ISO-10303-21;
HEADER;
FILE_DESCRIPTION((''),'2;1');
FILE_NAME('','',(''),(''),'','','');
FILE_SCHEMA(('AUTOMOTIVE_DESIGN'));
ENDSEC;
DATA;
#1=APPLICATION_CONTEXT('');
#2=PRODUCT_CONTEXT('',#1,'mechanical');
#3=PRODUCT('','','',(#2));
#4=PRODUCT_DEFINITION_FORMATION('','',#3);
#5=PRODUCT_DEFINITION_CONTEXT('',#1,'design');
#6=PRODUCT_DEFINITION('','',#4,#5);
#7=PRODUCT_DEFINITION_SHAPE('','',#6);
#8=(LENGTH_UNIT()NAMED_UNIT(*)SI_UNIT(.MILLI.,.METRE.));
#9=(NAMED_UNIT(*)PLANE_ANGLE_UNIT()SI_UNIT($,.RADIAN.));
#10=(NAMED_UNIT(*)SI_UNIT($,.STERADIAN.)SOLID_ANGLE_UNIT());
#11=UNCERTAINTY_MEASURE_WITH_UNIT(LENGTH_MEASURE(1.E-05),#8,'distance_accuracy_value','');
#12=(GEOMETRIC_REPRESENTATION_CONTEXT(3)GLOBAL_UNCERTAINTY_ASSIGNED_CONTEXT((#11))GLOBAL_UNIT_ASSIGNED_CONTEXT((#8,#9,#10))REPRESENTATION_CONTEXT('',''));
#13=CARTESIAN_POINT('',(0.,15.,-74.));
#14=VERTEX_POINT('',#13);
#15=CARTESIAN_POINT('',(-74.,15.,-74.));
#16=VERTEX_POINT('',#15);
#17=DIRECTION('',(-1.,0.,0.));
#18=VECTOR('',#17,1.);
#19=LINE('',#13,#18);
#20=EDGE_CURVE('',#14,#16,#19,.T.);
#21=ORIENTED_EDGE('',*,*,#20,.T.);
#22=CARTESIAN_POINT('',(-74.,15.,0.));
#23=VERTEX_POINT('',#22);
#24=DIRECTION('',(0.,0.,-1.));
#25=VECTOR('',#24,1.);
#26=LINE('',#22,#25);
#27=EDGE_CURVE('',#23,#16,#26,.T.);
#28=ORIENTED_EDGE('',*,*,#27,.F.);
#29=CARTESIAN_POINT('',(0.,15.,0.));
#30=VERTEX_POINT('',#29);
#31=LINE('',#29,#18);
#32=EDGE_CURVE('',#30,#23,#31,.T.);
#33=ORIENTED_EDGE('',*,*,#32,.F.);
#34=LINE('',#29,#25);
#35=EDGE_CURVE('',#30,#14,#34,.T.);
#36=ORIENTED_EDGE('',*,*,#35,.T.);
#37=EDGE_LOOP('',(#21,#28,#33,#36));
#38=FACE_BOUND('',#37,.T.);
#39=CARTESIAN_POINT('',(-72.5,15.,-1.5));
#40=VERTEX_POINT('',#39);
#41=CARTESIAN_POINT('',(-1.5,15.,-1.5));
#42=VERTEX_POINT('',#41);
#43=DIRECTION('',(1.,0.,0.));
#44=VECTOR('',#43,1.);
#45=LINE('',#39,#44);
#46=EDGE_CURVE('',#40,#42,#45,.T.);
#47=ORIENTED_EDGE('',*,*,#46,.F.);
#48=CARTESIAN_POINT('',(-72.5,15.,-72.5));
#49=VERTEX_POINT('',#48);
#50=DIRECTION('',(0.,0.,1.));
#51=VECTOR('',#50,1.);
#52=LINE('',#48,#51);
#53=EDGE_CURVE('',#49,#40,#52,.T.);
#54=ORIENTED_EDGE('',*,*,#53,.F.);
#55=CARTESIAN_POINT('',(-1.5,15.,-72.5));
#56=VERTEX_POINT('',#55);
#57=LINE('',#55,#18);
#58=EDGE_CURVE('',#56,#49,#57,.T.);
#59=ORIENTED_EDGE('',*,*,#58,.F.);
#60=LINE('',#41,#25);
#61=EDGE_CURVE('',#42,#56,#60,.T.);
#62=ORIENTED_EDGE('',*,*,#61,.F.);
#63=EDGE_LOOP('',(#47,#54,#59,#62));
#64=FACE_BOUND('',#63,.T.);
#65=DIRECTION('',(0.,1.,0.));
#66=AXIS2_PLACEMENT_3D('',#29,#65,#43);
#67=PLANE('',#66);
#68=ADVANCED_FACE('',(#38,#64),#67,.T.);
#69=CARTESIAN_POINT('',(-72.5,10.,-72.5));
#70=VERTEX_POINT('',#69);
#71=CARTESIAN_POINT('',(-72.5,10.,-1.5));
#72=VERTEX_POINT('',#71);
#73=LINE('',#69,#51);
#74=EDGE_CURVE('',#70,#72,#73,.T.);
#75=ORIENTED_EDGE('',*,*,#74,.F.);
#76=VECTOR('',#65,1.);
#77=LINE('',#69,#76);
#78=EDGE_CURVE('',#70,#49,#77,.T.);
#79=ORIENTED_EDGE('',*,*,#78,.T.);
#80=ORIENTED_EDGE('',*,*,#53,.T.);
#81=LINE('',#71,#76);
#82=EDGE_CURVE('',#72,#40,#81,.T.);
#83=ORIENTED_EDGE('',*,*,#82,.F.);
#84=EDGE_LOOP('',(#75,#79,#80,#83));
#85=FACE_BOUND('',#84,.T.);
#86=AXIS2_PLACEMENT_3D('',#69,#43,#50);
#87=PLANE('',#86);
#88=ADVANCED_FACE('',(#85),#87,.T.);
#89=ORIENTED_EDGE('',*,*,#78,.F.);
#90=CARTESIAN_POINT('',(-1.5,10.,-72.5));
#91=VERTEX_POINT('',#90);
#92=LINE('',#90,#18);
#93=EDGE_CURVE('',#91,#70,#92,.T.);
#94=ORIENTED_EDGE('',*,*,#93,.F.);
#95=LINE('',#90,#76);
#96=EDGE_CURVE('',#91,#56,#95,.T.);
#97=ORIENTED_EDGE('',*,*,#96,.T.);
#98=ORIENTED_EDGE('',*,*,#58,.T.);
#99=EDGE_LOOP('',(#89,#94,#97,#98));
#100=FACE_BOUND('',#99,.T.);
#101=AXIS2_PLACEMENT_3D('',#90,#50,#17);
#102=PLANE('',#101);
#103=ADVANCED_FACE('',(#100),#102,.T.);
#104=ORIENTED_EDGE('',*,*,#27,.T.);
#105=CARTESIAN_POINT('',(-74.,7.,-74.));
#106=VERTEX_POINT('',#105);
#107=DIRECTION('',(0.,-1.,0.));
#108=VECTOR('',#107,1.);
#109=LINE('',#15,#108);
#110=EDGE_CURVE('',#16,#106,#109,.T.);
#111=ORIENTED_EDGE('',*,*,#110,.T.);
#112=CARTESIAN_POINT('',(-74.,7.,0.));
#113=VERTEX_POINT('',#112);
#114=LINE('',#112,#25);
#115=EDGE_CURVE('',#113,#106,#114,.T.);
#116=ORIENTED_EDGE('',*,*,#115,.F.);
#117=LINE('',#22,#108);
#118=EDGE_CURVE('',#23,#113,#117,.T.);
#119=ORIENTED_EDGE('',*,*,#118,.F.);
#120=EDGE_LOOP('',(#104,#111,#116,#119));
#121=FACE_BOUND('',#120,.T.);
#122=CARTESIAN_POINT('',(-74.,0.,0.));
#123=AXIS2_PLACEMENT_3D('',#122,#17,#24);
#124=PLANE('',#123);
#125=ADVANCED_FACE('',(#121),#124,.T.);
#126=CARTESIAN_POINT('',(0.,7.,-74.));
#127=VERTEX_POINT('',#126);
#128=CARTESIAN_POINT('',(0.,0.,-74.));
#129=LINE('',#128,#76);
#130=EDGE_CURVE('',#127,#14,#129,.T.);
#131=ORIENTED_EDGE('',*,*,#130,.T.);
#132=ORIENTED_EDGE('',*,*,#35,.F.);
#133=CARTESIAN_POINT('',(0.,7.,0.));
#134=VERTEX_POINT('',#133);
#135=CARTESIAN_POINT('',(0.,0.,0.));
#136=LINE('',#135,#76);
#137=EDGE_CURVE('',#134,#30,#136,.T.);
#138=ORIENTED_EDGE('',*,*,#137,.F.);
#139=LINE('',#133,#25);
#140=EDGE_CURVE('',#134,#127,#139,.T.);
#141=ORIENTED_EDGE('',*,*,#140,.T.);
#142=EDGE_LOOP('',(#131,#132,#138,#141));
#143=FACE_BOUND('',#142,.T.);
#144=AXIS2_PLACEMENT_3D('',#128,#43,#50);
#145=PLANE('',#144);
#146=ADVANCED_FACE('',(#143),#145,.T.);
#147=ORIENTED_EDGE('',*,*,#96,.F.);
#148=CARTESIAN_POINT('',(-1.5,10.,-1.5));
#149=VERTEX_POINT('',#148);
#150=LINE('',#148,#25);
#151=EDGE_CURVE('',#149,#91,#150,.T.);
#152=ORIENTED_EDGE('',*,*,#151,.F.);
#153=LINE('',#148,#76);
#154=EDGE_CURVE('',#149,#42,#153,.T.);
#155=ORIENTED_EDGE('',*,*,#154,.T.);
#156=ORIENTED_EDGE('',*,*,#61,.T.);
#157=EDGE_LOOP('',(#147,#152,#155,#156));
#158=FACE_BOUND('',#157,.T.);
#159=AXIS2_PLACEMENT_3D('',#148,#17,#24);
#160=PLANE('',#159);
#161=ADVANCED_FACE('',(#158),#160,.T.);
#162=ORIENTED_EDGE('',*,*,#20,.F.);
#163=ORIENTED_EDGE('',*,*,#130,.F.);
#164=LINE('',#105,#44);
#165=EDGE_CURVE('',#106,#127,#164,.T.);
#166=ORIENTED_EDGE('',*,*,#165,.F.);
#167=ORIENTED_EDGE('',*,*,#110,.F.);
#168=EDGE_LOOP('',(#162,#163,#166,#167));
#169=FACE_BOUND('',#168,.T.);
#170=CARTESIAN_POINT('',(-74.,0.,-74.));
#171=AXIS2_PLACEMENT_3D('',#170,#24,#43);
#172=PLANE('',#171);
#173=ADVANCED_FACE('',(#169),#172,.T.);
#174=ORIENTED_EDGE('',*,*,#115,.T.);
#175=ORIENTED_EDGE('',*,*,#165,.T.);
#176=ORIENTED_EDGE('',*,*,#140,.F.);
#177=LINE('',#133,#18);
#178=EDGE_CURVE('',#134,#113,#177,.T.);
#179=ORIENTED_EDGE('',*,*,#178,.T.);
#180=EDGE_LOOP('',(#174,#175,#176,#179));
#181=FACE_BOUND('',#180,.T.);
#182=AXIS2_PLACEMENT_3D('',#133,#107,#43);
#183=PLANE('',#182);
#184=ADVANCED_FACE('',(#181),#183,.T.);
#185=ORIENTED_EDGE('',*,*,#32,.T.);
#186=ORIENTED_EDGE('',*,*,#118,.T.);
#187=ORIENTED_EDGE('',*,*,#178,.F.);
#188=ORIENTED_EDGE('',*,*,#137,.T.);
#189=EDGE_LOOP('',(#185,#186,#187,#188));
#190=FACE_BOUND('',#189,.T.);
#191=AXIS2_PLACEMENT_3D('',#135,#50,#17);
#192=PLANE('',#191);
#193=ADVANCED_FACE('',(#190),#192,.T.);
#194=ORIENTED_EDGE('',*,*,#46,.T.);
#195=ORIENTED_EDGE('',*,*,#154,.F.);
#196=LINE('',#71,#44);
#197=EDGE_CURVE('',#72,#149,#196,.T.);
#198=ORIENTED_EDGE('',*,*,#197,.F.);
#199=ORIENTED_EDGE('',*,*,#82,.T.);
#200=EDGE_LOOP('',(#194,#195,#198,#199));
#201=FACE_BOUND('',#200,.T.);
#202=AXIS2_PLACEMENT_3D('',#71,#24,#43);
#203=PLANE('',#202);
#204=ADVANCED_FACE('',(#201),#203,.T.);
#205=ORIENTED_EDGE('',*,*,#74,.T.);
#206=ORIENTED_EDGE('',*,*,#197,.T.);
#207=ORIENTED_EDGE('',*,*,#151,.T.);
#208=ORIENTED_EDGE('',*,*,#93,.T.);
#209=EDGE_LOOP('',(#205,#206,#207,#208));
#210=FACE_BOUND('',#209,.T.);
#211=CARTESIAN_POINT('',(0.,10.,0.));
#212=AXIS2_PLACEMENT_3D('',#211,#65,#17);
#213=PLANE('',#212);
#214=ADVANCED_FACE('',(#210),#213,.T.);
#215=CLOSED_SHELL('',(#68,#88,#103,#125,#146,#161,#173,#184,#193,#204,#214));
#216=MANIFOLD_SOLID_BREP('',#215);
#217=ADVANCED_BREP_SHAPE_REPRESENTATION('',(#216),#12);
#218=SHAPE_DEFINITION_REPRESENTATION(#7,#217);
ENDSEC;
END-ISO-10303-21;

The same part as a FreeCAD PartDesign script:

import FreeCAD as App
import Part
import Sketcher
Q = App.Units.Quantity

doc = App.newDocument("Part")
body = doc.addObject("PartDesign::Body", "Body")

# Sketch on XZ plane
sketch1 = body.newObject("Sketcher::SketchObject", "Sketch")
sketch1.AttachmentSupport = (doc.getObject("XZ_Plane"), [""])
sketch1.MapMode = "FlatFace"
sketch1.addGeometry(Part.LineSegment(App.Vector(-74, 0, 0), App.Vector(0, 0, 0)), False)
sketch1.addGeometry(Part.LineSegment(App.Vector(0, 0, 0), App.Vector(0, -74, 0)), False)
sketch1.addGeometry(Part.LineSegment(App.Vector(0, -74, 0), App.Vector(-74, -74, 0)), False)
sketch1.addGeometry(Part.LineSegment(App.Vector(-74, -74, 0), App.Vector(-74, 0, 0)), False)
sketch1.addConstraint(Sketcher.Constraint("Coincident", 0, 2, 1, 1))
sketch1.addConstraint(Sketcher.Constraint("Coincident", 1, 2, 2, 1))
sketch1.addConstraint(Sketcher.Constraint("Coincident", 2, 2, 3, 1))
sketch1.addConstraint(Sketcher.Constraint("Coincident", 3, 2, 0, 1))
sketch1.addConstraint(Sketcher.Constraint("Horizontal", 0))
sketch1.addConstraint(Sketcher.Constraint("Vertical", 1))
sketch1.addConstraint(Sketcher.Constraint("Horizontal", 2))
sketch1.addConstraint(Sketcher.Constraint("Vertical", 3))
sketch1.addConstraint(Sketcher.Constraint("Coincident", 0, 2, -1, 1))
sketch1.addConstraint(Sketcher.Constraint("Equal", 2, 1))
sketch1.addConstraint(Sketcher.Constraint("DistanceX", 0, 1, 0, 2, Q("74 mm")))
pad1 = body.newObject("PartDesign::Pad", "Pad")
pad1.Profile = sketch1
pad1.Length = 10
pad1.Reversed = True

# Sketch on XZ plane
sketch2 = body.newObject("Sketcher::SketchObject", "Sketch001")
sketch2.AttachmentSupport = (doc.getObject("XZ_Plane"), [""])
sketch2.MapMode = "FlatFace"
sketch2.AttachmentOffset = App.Placement(App.Vector(0, 0, -10), App.Rotation())
sketch2.addGeometry(Part.LineSegment(App.Vector(-74, 0, 0), App.Vector(0, 0, 0)), False)
sketch2.addGeometry(Part.LineSegment(App.Vector(0, 0, 0), App.Vector(0, -74, 0)), False)
sketch2.addGeometry(Part.LineSegment(App.Vector(0, -74, 0), App.Vector(-74, -74, 0)), False)
sketch2.addGeometry(Part.LineSegment(App.Vector(-74, -74, 0), App.Vector(-74, 0, 0)), False)
sketch2.addGeometry(Part.LineSegment(App.Vector(-72, -2, 0), App.Vector(-72, -72, 0)), False)
sketch2.addGeometry(Part.LineSegment(App.Vector(-72, -72, 0), App.Vector(-2, -72, 0)), False)
sketch2.addGeometry(Part.LineSegment(App.Vector(-2, -72, 0), App.Vector(-2, -2, 0)), False)
sketch2.addGeometry(Part.LineSegment(App.Vector(-2, -2, 0), App.Vector(-72, -2, 0)), False)
sketch2.addConstraint(Sketcher.Constraint("Coincident", 0, 2, 1, 1))
sketch2.addConstraint(Sketcher.Constraint("Coincident", 1, 2, 2, 1))
sketch2.addConstraint(Sketcher.Constraint("Coincident", 2, 2, 3, 1))
sketch2.addConstraint(Sketcher.Constraint("Coincident", 3, 2, 0, 1))
sketch2.addConstraint(Sketcher.Constraint("Coincident", 4, 2, 5, 1))
sketch2.addConstraint(Sketcher.Constraint("Coincident", 5, 2, 6, 1))
sketch2.addConstraint(Sketcher.Constraint("Coincident", 6, 2, 7, 1))
sketch2.addConstraint(Sketcher.Constraint("Coincident", 7, 2, 4, 1))
sketch2.addConstraint(Sketcher.Constraint("Horizontal", 0))
sketch2.addConstraint(Sketcher.Constraint("Vertical", 1))
sketch2.addConstraint(Sketcher.Constraint("Horizontal", 2))
sketch2.addConstraint(Sketcher.Constraint("Vertical", 3))
sketch2.addConstraint(Sketcher.Constraint("Vertical", 4))
sketch2.addConstraint(Sketcher.Constraint("Horizontal", 5))
sketch2.addConstraint(Sketcher.Constraint("Vertical", 6))
sketch2.addConstraint(Sketcher.Constraint("Horizontal", 7))
sketch2.addConstraint(Sketcher.Constraint("Coincident", 0, 2, -1, 1))
sketch2.addConstraint(Sketcher.Constraint("Equal", 2, 1))
sketch2.addConstraint(Sketcher.Constraint("Equal", 7, 4))
sketch2.addConstraint(Sketcher.Constraint("DistanceX", 5, 2, -1, 1, Q("1.5 mm")))
sketch2.addConstraint(Sketcher.Constraint("DistanceY", 6, 2, -1, 1, Q("1.5 mm")))
sketch2.addConstraint(Sketcher.Constraint("DistanceX", 2, 2, 4, 2, Q("1.5 mm")))
sketch2.addConstraint(Sketcher.Constraint("DistanceX", 0, 1, 0, 2, Q("74 mm")))
pad2 = body.newObject("PartDesign::Pad", "Pad001")
pad2.Profile = sketch2
pad2.Length = 5
pad2.Reversed = True

# Sketch on XZ plane
sketch3 = body.newObject("Sketcher::SketchObject", "Sketch002")
sketch3.AttachmentSupport = (doc.getObject("XZ_Plane"), [""])
sketch3.MapMode = "FlatFace"
sketch3.addGeometry(Part.LineSegment(App.Vector(0, -74, 0), App.Vector(0, 0, 0)), False)
sketch3.addGeometry(Part.LineSegment(App.Vector(0, 0, 0), App.Vector(-74, 0, 0)), False)
sketch3.addGeometry(Part.LineSegment(App.Vector(-74, 0, 0), App.Vector(-74, -74, 0)), False)
sketch3.addGeometry(Part.LineSegment(App.Vector(-74, -74, 0), App.Vector(0, -74, 0)), False)
sketch3.addConstraint(Sketcher.Constraint("Coincident", 0, 2, 1, 1))
sketch3.addConstraint(Sketcher.Constraint("Coincident", 1, 2, 2, 1))
sketch3.addConstraint(Sketcher.Constraint("Coincident", 2, 2, 3, 1))
sketch3.addConstraint(Sketcher.Constraint("Coincident", 3, 2, 0, 1))
sketch3.addConstraint(Sketcher.Constraint("Vertical", 0))
sketch3.addConstraint(Sketcher.Constraint("Horizontal", 1))
sketch3.addConstraint(Sketcher.Constraint("Vertical", 2))
sketch3.addConstraint(Sketcher.Constraint("Horizontal", 3))
sketch3.addConstraint(Sketcher.Constraint("Coincident", 0, 2, -1, 1))
sketch3.addConstraint(Sketcher.Constraint("Equal", 3, 0))
sketch3.addConstraint(Sketcher.Constraint("DistanceX", 1, 2, 1, 1, Q("74 mm")))
pocket1 = body.newObject("PartDesign::Pocket", "Pocket")
pocket1.Profile = sketch3
pocket1.Length = 5

# Sketch on XZ plane
sketch4 = body.newObject("Sketcher::SketchObject", "Sketch003")
sketch4.AttachmentSupport = (doc.getObject("XZ_Plane"), [""])
sketch4.MapMode = "FlatFace"
sketch4.AttachmentOffset = App.Placement(App.Vector(0, 0, -5), App.Rotation())
sketch4.addGeometry(Part.LineSegment(App.Vector(0, -74, 0), App.Vector(0, 0, 0)), False)
sketch4.addGeometry(Part.LineSegment(App.Vector(0, 0, 0), App.Vector(-74, 0, 0)), False)
sketch4.addGeometry(Part.LineSegment(App.Vector(-74, 0, 0), App.Vector(-74, -74, 0)), False)
sketch4.addGeometry(Part.LineSegment(App.Vector(-74, -74, 0), App.Vector(0, -74, 0)), False)
sketch4.addConstraint(Sketcher.Constraint("Coincident", 0, 2, 1, 1))
sketch4.addConstraint(Sketcher.Constraint("Coincident", 1, 2, 2, 1))
sketch4.addConstraint(Sketcher.Constraint("Coincident", 2, 2, 3, 1))
sketch4.addConstraint(Sketcher.Constraint("Coincident", 3, 2, 0, 1))
sketch4.addConstraint(Sketcher.Constraint("Vertical", 0))
sketch4.addConstraint(Sketcher.Constraint("Horizontal", 1))
sketch4.addConstraint(Sketcher.Constraint("Vertical", 2))
sketch4.addConstraint(Sketcher.Constraint("Horizontal", 3))
sketch4.addConstraint(Sketcher.Constraint("Coincident", 0, 2, -1, 1))
sketch4.addConstraint(Sketcher.Constraint("Equal", 3, 0))
sketch4.addConstraint(Sketcher.Constraint("DistanceX", 1, 2, 1, 1, Q("74 mm")))
pocket2 = body.newObject("PartDesign::Pocket", "Pocket001")
pocket2.Profile = sketch4
pocket2.Length = 2

doc.recompute()
